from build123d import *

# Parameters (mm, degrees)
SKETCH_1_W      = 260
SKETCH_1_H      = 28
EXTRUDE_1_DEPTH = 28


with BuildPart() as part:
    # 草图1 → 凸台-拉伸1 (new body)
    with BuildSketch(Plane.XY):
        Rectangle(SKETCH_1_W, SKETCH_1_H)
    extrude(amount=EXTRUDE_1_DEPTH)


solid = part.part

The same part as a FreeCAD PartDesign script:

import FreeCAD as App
import Part
import Sketcher

doc = App.newDocument("Part")
params = doc.addObject("Spreadsheet::Sheet", "Params")
for row, (alias, value) in enumerate([
    ("sketch1_width", "260 mm"),
    ("sketch1_height", "28 mm"),
    ("pad1_length", "28 mm"),
], start=1):
    params.set(f"A{row}", alias)
    params.set(f"B{row}", "=" + value)
    params.setAlias(f"B{row}", alias)

body = doc.addObject("PartDesign::Body", "Body")

# Sketch on XY plane
sketch1 = doc.addObject("Sketcher::SketchObject", "Sketch")
body.addObject(sketch1)
sketch1.AttachmentSupport = (doc.XY_Plane, [""])
sketch1.MapMode = "FlatFace"
sketch1.addGeometry(Part.LineSegment(App.Vector(-130, 14, 0), App.Vector(-130, -14, 0)), False)
sketch1.addGeometry(Part.LineSegment(App.Vector(-130, -14, 0), App.Vector(130, -14, 0)), False)
sketch1.addGeometry(Part.LineSegment(App.Vector(130, -14, 0), App.Vector(130, 14, 0)), False)
sketch1.addGeometry(Part.LineSegment(App.Vector(130, 14, 0), App.Vector(-130, 14, 0)), False)
sketch1.addConstraint(Sketcher.Constraint("Coincident", 0, 2, 1, 1))
sketch1.addConstraint(Sketcher.Constraint("Coincident", 1, 2, 2, 1))
sketch1.addConstraint(Sketcher.Constraint("Coincident", 2, 2, 3, 1))
sketch1.addConstraint(Sketcher.Constraint("Coincident", 3, 2, 0, 1))
sketch1.addConstraint(Sketcher.Constraint("Vertical", 0))
sketch1.addConstraint(Sketcher.Constraint("Horizontal", 1))
sketch1.addConstraint(Sketcher.Constraint("Vertical", 2))
sketch1.addConstraint(Sketcher.Constraint("Horizontal", 3))
sketch1.addConstraint(Sketcher.Constraint("Symmetric", 0, 2, 2, 2, -1, 1))
sketch1.addConstraint(Sketcher.Constraint("DistanceX", 1, 1, 1, 2, 260.0))
sketch1.addConstraint(Sketcher.Constraint("DistanceY", 0, 2, 0, 1, 28.0))
sketch1.setExpression("Constraints[9]", "Params.sketch1_width")
sketch1.setExpression("Constraints[10]", "Params.sketch1_height")
pad1 = doc.addObject("PartDesign::Pad", "Pad")
body.addObject(pad1)
pad1.Profile = sketch1
pad1.setExpression("Length", "Params.pad1_length")

doc.recompute()
